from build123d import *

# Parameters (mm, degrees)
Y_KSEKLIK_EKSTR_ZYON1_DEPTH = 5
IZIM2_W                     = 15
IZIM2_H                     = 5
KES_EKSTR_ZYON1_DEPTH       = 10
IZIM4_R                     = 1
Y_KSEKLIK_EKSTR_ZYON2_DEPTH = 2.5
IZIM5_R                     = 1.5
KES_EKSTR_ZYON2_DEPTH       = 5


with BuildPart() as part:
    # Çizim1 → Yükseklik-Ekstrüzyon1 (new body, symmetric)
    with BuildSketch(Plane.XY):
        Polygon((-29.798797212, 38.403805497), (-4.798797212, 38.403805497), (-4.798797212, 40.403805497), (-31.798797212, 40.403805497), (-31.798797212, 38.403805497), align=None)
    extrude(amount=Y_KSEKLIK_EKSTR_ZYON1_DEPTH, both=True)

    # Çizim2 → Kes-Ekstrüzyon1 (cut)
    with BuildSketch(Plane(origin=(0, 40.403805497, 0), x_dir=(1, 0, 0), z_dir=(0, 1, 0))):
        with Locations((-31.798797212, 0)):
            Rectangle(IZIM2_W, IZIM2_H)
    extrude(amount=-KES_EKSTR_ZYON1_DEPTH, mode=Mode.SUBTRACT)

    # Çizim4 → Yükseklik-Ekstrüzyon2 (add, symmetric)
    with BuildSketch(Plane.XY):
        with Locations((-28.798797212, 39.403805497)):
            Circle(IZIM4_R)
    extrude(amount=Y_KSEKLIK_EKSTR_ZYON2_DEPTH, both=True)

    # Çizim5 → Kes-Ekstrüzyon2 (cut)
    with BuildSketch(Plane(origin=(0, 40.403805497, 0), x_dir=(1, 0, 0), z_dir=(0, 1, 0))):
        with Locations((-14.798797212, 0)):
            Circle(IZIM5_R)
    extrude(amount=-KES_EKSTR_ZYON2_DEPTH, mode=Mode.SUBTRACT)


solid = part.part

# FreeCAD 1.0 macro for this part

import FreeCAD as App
import Part
import Sketcher
Q = App.Units.Quantity

doc = App.newDocument("Part")
body = doc.addObject("PartDesign::Body", "Body")

sketch1 = body.newObject("Sketcher::SketchObject", "Sketch")
sketch1.AttachmentSupport = (doc.getObject("XY_Plane"), [""])
sketch1.MapMode = "FlatFace"
sketch1.addGeometry([
    Part.LineSegment(App.Vector(-4.798797, 38.403805, 0), App.Vector(-4.798797, 40.403805, 0)),
    Part.LineSegment(App.Vector(-4.798797, 40.403805, 0), App.Vector(-31.798797, 40.403805, 0)),
    Part.LineSegment(App.Vector(-31.798797, 40.403805, 0), App.Vector(-31.798797, 38.403805, 0)),
    Part.LineSegment(App.Vector(-31.798797, 38.403805, 0), App.Vector(-4.798797, 38.403805, 0)),
], False)
sketch1.addConstraint([
    Sketcher.Constraint("Coincident", 0, 2, 1, 1),
    Sketcher.Constraint("Coincident", 1, 2, 2, 1),
    Sketcher.Constraint("Coincident", 2, 2, 3, 1),
    Sketcher.Constraint("Coincident", 3, 2, 0, 1),
    Sketcher.Constraint("Vertical", 0),
    Sketcher.Constraint("Horizontal", 1),
    Sketcher.Constraint("Vertical", 2),
    Sketcher.Constraint("Horizontal", 3),
    Sketcher.Constraint("DistanceX", 1, 2, 1, 1, Q("27 mm")),
    Sketcher.Constraint("DistanceY", 0, 1, 0, 2, Q("2 mm")),
    Sketcher.Constraint("DistanceX", 0, 2, -1, 1, Q("4.798797 mm")),
    Sketcher.Constraint("DistanceY", -1, 1, 0, 2, Q("40.403805 mm")),
])
pad1 = body.newObject("PartDesign::Pad", "Pad")
pad1.Profile = sketch1
pad1.Length = 10
pad1.Midplane = True

sketch2 = body.newObject("Sketcher::SketchObject", "Sketch001")
sketch2.AttachmentSupport = (doc.getObject("XZ_Plane"), [""])
sketch2.MapMode = "FlatFace"
sketch2.AttachmentOffset = App.Placement(App.Vector(0, 0, -40.403805), App.Rotation())
sketch2.addGeometry([
    Part.LineSegment(App.Vector(-39.298797, -2.5, 0), App.Vector(-39.298797, 2.5, 0)),
    Part.LineSegment(App.Vector(-39.298797, 2.5, 0), App.Vector(-24.298797, 2.5, 0)),
    Part.LineSegment(App.Vector(-24.298797, 2.5, 0), App.Vector(-24.298797, -2.5, 0)),
    Part.LineSegment(App.Vector(-24.298797, -2.5, 0), App.Vector(-39.298797, -2.5, 0)),
], False)
sketch2.addConstraint([
    Sketcher.Constraint("Coincident", 0, 2, 1, 1),
    Sketcher.Constraint("Coincident", 1, 2, 2, 1),
    Sketcher.Constraint("Coincident", 2, 2, 3, 1),
    Sketcher.Constraint("Coincident", 3, 2, 0, 1),
    Sketcher.Constraint("Vertical", 0),
    Sketcher.Constraint("Horizontal", 1),
    Sketcher.Constraint("Vertical", 2),
    Sketcher.Constraint("Horizontal", 3),
    Sketcher.Constraint("DistanceX", 1, 1, 1, 2, Q("15 mm")),
    Sketcher.Constraint("DistanceY", 0, 1, 0, 2, Q("5 mm")),
    Sketcher.Constraint("DistanceY", -1, 1, 0, 2, Q("2.5 mm")),
    Sketcher.Constraint("DistanceX", 0, 2, -1, 1, Q("39.298797 mm")),
])
pocket1 = body.newObject("PartDesign::Pocket", "Pocket")
pocket1.Profile = sketch2
pocket1.Length = 10
pocket1.Reversed = True

sketch3 = body.newObject("Sketcher::SketchObject", "Sketch002")
sketch3.AttachmentSupport = (doc.getObject("XY_Plane"), [""])
sketch3.MapMode = "FlatFace"
sketch3.addGeometry(Part.Circle(App.Vector(-28.798797, 39.403805, 0), App.Vector(0, 0, 1), 1), False)
sketch3.addConstraint([
    Sketcher.Constraint("Diameter", 0, Q("2 mm")),
    Sketcher.Constraint("DistanceX", 0, 3, -1, 1, Q("28.798797 mm")),
    Sketcher.Constraint("DistanceY", -1, 1, 0, 3, Q("39.403805 mm")),
])
pad2 = body.newObject("PartDesign::Pad", "Pad001")
pad2.Profile = sketch3
pad2.Length = 5
pad2.Midplane = True

sketch4 = body.newObject("Sketcher::SketchObject", "Sketch003")
sketch4.AttachmentSupport = (doc.getObject("XZ_Plane"), [""])
sketch4.MapMode = "FlatFace"
sketch4.AttachmentOffset = App.Placement(App.Vector(0, 0, -40.403805), App.Rotation())
sketch4.addGeometry(Part.Circle(App.Vector(-14.798797, 0, 0), App.Vector(0, 0, 1), 1.5), False)
sketch4.addConstraint([
    Sketcher.Constraint("PointOnObject", 0, 3, -1),
    Sketcher.Constraint("Diameter", 0, Q("3 mm")),
    Sketcher.Constraint("DistanceX", 0, 3, -1, 1, Q("14.798797 mm")),
])
pocket2 = body.newObject("PartDesign::Pocket", "Pocket001")
pocket2.Profile = sketch4
pocket2.Length = 5
pocket2.Reversed = True

doc.recompute()
